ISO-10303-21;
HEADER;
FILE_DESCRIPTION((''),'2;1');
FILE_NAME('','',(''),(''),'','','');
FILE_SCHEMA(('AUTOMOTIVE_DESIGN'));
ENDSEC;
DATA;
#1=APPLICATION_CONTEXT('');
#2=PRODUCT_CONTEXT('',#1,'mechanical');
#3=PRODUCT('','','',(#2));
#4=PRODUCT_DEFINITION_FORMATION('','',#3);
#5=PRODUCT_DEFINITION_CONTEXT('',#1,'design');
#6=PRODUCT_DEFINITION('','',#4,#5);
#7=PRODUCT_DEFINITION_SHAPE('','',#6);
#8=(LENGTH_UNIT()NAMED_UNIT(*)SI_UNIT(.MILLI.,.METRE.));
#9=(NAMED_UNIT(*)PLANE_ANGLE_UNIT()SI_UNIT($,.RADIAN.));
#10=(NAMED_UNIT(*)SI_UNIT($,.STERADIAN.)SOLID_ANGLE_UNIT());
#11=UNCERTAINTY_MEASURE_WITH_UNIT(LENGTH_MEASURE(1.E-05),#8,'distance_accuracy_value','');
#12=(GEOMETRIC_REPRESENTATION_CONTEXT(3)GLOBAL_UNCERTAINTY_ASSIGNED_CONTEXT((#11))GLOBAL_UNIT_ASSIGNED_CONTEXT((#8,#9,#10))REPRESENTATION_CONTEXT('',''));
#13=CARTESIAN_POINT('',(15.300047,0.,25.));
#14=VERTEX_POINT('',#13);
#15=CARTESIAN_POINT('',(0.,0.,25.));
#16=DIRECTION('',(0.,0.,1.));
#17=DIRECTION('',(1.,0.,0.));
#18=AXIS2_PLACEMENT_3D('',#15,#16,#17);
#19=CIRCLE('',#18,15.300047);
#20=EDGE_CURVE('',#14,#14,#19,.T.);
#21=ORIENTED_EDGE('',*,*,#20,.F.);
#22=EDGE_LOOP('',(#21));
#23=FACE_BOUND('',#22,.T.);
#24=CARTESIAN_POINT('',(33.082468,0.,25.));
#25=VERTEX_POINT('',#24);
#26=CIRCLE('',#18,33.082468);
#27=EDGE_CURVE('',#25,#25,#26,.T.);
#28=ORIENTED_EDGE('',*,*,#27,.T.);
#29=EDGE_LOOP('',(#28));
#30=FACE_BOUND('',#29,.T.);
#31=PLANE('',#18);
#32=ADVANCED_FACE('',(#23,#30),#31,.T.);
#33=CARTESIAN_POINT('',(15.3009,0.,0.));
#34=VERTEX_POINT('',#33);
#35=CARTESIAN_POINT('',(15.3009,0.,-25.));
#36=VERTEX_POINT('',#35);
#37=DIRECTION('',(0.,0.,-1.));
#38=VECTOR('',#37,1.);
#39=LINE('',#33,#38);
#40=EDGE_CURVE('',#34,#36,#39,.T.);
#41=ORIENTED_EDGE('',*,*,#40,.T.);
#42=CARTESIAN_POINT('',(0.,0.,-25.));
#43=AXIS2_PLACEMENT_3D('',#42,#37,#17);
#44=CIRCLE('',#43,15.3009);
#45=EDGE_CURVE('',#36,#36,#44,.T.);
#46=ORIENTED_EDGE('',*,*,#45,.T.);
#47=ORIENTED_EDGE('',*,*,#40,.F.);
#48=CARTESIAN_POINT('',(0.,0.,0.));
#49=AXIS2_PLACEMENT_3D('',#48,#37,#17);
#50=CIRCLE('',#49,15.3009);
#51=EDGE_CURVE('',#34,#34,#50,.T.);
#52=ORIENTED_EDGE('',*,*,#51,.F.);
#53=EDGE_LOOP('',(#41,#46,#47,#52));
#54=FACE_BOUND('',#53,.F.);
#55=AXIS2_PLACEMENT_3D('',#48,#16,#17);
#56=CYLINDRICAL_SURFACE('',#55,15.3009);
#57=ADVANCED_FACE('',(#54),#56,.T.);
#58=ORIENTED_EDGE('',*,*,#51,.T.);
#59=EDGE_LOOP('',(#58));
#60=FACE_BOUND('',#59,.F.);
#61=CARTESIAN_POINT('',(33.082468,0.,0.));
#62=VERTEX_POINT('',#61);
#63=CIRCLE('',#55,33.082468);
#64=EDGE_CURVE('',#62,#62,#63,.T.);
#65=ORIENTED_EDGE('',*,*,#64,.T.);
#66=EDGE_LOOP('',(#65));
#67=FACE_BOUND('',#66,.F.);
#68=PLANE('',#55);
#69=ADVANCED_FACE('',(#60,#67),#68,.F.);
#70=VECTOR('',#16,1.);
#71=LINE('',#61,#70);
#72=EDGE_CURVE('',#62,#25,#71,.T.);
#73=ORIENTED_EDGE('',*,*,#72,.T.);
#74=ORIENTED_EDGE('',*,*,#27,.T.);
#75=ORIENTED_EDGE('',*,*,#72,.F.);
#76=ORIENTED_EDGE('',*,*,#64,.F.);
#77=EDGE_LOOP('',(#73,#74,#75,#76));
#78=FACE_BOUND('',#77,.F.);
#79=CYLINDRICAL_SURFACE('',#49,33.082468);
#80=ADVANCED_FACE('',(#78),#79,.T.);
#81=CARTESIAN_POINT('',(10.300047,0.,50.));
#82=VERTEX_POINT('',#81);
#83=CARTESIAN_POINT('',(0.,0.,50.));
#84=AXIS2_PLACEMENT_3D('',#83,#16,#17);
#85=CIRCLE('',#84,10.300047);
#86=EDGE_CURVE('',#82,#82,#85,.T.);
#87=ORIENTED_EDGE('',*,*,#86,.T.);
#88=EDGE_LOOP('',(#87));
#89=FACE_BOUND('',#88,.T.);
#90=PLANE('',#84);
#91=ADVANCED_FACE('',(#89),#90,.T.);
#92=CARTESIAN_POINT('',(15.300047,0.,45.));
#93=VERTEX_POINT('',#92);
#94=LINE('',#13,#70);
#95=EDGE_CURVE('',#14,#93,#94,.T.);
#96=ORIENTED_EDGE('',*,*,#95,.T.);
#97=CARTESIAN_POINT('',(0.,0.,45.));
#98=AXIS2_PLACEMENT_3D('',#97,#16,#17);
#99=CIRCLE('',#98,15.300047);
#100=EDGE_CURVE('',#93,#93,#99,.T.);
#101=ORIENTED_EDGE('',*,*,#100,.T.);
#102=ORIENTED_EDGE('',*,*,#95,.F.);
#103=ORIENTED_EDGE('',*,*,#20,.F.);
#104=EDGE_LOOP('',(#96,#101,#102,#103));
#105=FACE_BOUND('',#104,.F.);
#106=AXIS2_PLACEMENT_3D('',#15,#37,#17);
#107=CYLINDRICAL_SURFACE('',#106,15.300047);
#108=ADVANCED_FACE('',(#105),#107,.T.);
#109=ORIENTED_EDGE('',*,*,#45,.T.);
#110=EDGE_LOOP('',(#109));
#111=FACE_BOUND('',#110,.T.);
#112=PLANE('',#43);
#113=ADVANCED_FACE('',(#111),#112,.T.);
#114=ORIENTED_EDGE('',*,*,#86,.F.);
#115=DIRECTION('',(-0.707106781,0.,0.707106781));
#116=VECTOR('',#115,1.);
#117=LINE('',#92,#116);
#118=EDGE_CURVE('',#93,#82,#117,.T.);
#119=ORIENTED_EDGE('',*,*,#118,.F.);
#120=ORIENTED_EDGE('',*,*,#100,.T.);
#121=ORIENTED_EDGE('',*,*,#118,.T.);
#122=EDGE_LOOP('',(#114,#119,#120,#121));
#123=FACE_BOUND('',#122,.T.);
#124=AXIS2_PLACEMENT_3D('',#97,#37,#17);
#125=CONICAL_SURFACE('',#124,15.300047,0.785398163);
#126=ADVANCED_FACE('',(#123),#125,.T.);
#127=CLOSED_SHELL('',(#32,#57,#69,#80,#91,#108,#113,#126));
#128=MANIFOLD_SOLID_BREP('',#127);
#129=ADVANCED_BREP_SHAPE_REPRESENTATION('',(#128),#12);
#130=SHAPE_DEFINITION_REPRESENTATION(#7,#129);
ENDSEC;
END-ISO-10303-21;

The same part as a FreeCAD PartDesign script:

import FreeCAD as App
import Part
import Sketcher


def edges_at(feature, points):
    """Names of the edges that pass closest to the given points."""
    edges = feature.Shape.Edges
    near = lambda p: min(range(len(edges)), key=lambda i: edges[i].distToShape(Part.Vertex(*p))[0])
    return sorted({f"Edge{near(p) + 1}" for p in points})

doc = App.newDocument("Part")
body = doc.addObject("PartDesign::Body", "Body")

# Sketch on XY plane
sketch1 = body.newObject("Sketcher::SketchObject", "Sketch")
sketch1.AttachmentSupport = (doc.getObject("XY_Plane"), [""])
sketch1.MapMode = "FlatFace"
sketch1.addGeometry(Part.Circle(App.Vector(0, 0, 0), App.Vector(0, 0, 1), 33), False)
sketch1.addConstraint(Sketcher.Constraint("Coincident", 0, 3, -1, 1))
sketch1.addConstraint(Sketcher.Constraint("Diameter", 0, 66.164936))
pad1 = body.newObject("PartDesign::Pad", "Pad")
pad1.Profile = sketch1
pad1.Length = 25

# Sketch on XY plane
sketch2 = body.newObject("Sketcher::SketchObject", "Sketch001")
sketch2.AttachmentSupport = (doc.getObject("XY_Plane"), [""])
sketch2.MapMode = "FlatFace"
sketch2.AttachmentOffset = App.Placement(App.Vector(0, 0, 25), App.Rotation())
sketch2.addGeometry(Part.Circle(App.Vector(0, 0, 0), App.Vector(0, 0, 1), 15), False)
sketch2.addConstraint(Sketcher.Constraint("Coincident", 0, 3, -1, 1))
sketch2.addConstraint(Sketcher.Constraint("Diameter", 0, 30.600094))
pad2 = body.newObject("PartDesign::Pad", "Pad001")
pad2.Profile = sketch2
pad2.Length = 25
doc.recompute()

chamfer = body.newObject("PartDesign::Chamfer", "Chamfer")
chamfer.Base = (pad2, edges_at(pad2, [(-15.3, 0, 50)]))
chamfer.Size = 5

# Sketch on XY plane
sketch3 = body.newObject("Sketcher::SketchObject", "Sketch002")
sketch3.AttachmentSupport = (doc.getObject("XY_Plane"), [""])
sketch3.MapMode = "FlatFace"
sketch3.addGeometry(Part.Circle(App.Vector(0, 0, 0), App.Vector(0, 0, 1), 15), False)
sketch3.addConstraint(Sketcher.Constraint("Coincident", 0, 3, -1, 1))
sketch3.addConstraint(Sketcher.Constraint("Diameter", 0, 30.6018))
pad3 = body.newObject("PartDesign::Pad", "Pad002")
pad3.Profile = sketch3
pad3.Length = 25
pad3.Reversed = True

doc.recompute()
